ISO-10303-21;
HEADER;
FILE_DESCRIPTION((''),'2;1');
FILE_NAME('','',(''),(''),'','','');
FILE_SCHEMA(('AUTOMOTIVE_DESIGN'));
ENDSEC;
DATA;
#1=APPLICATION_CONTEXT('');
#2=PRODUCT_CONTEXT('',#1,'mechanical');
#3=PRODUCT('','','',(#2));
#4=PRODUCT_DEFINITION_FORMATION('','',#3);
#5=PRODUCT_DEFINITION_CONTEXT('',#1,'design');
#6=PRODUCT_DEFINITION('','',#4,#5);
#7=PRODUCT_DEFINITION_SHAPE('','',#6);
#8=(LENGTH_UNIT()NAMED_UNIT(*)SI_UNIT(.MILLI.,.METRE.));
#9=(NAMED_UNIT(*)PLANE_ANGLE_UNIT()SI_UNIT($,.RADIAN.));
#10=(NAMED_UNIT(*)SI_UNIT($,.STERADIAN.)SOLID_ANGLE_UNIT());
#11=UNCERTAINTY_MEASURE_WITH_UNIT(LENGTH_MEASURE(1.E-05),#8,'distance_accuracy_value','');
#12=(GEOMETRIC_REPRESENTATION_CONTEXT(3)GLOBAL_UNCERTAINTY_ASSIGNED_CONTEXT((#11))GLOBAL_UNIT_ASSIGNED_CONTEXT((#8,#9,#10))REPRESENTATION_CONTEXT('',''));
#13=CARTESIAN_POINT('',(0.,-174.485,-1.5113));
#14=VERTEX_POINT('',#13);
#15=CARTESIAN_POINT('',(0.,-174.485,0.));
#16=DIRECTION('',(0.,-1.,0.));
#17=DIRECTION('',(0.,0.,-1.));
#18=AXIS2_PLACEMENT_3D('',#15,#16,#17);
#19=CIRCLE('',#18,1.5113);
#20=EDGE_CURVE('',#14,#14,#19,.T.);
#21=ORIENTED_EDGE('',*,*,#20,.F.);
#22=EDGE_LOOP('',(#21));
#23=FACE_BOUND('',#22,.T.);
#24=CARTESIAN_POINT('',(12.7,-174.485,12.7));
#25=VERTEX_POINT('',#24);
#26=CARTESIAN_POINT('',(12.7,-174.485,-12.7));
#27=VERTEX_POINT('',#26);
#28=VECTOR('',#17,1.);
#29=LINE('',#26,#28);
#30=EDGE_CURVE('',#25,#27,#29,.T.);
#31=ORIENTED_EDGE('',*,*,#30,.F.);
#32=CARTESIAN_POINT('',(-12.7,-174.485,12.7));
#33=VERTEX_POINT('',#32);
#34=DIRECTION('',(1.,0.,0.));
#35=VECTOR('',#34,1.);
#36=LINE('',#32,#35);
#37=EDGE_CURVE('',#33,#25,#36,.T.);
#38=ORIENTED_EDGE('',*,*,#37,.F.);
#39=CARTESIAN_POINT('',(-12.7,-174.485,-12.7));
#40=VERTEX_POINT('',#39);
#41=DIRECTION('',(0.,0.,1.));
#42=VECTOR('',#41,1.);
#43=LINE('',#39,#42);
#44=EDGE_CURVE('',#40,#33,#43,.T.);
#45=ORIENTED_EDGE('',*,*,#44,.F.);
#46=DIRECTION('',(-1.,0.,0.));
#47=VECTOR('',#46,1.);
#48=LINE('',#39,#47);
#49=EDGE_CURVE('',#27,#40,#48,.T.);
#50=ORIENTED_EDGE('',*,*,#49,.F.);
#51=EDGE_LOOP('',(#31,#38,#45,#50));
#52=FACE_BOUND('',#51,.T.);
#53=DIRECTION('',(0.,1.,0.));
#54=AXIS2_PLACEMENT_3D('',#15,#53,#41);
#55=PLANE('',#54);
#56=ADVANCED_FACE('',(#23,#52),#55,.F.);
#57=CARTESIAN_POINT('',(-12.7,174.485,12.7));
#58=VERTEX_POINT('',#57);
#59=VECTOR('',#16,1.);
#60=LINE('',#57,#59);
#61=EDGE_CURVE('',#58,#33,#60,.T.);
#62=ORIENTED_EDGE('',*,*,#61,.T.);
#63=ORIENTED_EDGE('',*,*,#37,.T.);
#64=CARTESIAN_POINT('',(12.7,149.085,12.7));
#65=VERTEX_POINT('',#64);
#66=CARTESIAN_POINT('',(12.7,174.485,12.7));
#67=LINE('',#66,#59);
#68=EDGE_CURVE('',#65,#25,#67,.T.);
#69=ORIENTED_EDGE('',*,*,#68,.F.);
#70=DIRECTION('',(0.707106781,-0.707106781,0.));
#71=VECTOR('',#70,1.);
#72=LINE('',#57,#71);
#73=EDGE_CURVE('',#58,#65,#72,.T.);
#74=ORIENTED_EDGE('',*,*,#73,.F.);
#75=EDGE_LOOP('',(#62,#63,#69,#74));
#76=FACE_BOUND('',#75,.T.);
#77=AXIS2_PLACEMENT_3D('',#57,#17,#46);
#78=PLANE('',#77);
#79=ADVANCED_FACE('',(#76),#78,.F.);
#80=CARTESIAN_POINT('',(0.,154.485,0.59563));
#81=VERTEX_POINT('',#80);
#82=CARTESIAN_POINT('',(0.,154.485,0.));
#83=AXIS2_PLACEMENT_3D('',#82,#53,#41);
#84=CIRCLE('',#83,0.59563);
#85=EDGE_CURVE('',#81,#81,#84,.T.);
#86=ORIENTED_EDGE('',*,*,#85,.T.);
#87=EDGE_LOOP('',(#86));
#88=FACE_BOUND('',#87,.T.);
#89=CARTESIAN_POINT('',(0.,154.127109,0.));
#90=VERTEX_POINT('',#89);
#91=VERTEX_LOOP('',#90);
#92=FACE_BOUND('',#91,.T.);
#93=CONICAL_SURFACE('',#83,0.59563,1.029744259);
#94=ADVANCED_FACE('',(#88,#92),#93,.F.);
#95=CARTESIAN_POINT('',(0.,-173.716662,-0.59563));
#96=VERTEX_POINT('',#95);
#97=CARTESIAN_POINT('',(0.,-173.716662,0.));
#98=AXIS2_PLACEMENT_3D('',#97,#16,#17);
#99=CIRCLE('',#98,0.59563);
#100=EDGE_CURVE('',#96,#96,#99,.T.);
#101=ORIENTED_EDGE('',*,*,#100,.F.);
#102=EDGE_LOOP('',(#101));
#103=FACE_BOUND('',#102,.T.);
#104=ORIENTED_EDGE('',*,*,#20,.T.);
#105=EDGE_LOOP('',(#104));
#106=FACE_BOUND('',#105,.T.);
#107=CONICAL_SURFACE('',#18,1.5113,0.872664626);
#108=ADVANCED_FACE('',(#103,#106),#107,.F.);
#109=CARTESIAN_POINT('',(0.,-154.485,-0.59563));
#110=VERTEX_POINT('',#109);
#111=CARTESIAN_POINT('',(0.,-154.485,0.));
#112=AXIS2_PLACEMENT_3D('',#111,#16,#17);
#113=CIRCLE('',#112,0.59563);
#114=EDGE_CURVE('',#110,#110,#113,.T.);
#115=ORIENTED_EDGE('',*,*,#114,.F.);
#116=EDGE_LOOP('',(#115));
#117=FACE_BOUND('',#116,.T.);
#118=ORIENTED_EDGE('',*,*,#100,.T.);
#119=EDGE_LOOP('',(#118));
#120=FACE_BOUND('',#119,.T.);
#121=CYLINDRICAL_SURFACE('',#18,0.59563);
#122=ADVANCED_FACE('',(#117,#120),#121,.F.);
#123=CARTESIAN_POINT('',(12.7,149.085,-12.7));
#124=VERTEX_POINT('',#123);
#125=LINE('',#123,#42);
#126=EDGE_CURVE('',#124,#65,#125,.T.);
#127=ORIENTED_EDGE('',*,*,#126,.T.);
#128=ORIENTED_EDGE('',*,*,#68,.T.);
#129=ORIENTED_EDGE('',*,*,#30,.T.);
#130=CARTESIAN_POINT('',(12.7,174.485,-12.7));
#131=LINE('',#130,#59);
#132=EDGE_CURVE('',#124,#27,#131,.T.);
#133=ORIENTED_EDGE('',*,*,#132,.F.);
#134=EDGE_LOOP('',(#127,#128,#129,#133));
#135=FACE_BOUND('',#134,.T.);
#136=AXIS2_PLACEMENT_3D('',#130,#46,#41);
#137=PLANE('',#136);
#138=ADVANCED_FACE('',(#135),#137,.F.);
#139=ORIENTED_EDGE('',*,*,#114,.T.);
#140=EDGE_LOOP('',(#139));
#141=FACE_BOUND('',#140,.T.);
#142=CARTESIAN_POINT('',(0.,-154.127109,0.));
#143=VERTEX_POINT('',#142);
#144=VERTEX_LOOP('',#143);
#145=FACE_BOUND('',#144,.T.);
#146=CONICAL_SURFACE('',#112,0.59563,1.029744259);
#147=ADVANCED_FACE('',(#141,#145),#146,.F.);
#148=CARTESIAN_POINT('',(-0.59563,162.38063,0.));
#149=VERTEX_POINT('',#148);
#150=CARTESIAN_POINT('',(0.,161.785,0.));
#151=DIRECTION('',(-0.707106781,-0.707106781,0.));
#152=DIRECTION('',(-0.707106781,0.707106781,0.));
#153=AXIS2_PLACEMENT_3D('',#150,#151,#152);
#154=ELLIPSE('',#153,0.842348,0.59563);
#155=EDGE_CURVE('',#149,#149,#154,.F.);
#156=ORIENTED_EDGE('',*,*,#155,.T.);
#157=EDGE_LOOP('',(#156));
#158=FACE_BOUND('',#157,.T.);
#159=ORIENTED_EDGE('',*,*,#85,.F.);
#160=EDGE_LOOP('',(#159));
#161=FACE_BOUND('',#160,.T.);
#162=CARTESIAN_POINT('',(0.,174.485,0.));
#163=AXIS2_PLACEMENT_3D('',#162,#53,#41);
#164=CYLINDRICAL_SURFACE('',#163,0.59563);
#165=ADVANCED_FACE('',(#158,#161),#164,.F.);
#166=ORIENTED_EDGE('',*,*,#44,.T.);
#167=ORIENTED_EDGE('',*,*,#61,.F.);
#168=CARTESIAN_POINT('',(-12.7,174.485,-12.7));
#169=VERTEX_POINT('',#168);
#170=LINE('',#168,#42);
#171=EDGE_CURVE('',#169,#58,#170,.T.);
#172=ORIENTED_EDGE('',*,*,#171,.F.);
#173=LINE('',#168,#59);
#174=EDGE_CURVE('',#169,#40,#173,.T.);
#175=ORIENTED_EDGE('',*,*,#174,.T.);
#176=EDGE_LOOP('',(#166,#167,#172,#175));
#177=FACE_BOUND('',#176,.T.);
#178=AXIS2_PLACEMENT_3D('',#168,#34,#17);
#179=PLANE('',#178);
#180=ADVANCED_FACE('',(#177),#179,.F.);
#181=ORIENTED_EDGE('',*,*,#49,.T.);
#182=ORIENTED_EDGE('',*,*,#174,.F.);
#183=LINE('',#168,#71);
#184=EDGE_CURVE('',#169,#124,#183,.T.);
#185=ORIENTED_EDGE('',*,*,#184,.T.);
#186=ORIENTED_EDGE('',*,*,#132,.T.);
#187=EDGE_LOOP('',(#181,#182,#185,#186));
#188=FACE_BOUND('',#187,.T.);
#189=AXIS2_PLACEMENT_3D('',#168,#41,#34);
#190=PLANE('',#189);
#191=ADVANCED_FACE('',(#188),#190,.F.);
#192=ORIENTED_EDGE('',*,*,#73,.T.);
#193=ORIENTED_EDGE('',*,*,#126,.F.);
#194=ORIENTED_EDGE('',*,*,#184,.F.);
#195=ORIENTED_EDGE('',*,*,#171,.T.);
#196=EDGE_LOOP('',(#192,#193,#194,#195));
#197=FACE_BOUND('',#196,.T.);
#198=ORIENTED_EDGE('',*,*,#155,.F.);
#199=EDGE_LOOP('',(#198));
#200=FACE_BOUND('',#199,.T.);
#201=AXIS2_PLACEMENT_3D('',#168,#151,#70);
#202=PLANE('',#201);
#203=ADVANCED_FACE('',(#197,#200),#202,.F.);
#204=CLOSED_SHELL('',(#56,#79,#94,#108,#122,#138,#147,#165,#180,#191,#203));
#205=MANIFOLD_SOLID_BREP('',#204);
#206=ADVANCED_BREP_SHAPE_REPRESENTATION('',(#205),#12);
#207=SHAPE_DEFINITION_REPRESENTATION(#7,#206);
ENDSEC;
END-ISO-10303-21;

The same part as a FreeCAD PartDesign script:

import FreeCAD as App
import Part
import Sketcher

V = App.Vector
Q = App.Units.Quantity


def add_polygon(sketch, points):
    """Adds a closed chain of lines whose ends are joined by coincident constraints."""
    first, n = sketch.GeometryCount, len(points)
    for a, b in zip(points, points[1:] + points[:1]):
        sketch.addGeometry(Part.LineSegment(App.Vector(*a, 0), App.Vector(*b, 0)), False)
    for i in range(n):
        sketch.addConstraint(Sketcher.Constraint("Coincident", first + i, 2, first + (i + 1) % n, 1))

doc = App.newDocument("Part")
body = doc.addObject("PartDesign::Body", "Body")

# Sketch on XZ plane
sketch1 = body.newObject("Sketcher::SketchObject", "Sketch")
sketch1.AttachmentSupport = (doc.getObject("XZ_Plane"), [""])
sketch1.MapMode = "FlatFace"
add_polygon(sketch1, [(-13, -13), (-13, 13), (13, 13), (13, -13)])  # lines 0-3
sketch1.addConstraint(Sketcher.Constraint("Vertical", 0))
sketch1.addConstraint(Sketcher.Constraint("Horizontal", 1))
sketch1.addConstraint(Sketcher.Constraint("Vertical", 2))
sketch1.addConstraint(Sketcher.Constraint("Horizontal", 3))
sketch1.addConstraint(Sketcher.Constraint("Symmetric", 0, 2, 2, 2, -1, 1))
sketch1.addConstraint(Sketcher.Constraint("Equal", 3, 0))
sketch1.addConstraint(Sketcher.Constraint("DistanceX", 1, 1, 1, 2, 25.4))
pad1 = body.newObject("PartDesign::Pad", "Pad")
pad1.Profile = sketch1
pad1.Length = 348.97
pad1.Midplane = True

# Sketch on YZ plane
sketch2 = body.newObject("Sketcher::SketchObject", "Sketch001")
sketch2.AttachmentSupport = (doc.getObject("YZ_Plane"), [""])
sketch2.MapMode = "FlatFace"
add_polygon(sketch2, [(-154.1, 0), (-174.5, 0), (-174.5, -1.5), (-173.7, -0.6), (-154.5, -0.6)])  # lines 0-4
sketch2.addConstraint(Sketcher.Constraint("Horizontal", 0))
sketch2.addConstraint(Sketcher.Constraint("Vertical", 1))
sketch2.addConstraint(Sketcher.Constraint("Horizontal", 3))
sketch2.addConstraint(Sketcher.Constraint("PointOnObject", 0, 2, -1))
sketch2.addConstraint(Sketcher.Constraint("Angle", 2, Q("50 deg")))
sketch2.addConstraint(Sketcher.Constraint("Angle", 4, Q("59 deg")))
sketch2.addConstraint(Sketcher.Constraint("DistanceX", 0, 2, 3, 2, 20.0))
sketch2.addConstraint(Sketcher.Constraint("DistanceY", 1, 2, 1, 1, 1.5113))
sketch2.addConstraint(Sketcher.Constraint("DistanceX", 0, 2, -1, 1, 174.485))
sketch2.addConstraint(Sketcher.Constraint("DistanceX", 0, 2, 0, 1, 20.357891))
groove = body.newObject("PartDesign::Groove", "Groove")
groove.Profile = sketch2
groove.ReferenceAxis = (sketch2, ["H_Axis"])
groove.Angle = 360
doc.recompute()

mirrored = body.newObject("PartDesign::Mirrored", "Mirrored")
mirrored.Originals = [groove]
mirrored.MirrorPlane = (doc.getObject("XZ_Plane"), [""])
body.Tip = mirrored

# Sketch on XY plane
sketch3 = body.newObject("Sketcher::SketchObject", "Sketch002")
sketch3.AttachmentSupport = (doc.getObject("XY_Plane"), [""])
sketch3.MapMode = "FlatFace"
add_polygon(sketch3, [(13, 174), (-13, 174), (13, 149)])  # lines 0-2
sketch3.addConstraint(Sketcher.Constraint("Horizontal", 0))
sketch3.addConstraint(Sketcher.Constraint("Vertical", 2))
sketch3.addConstraint(Sketcher.Constraint("Equal", 0, 2))
sketch3.addConstraint(Sketcher.Constraint("DistanceX", 0, 2, 0, 1, 25.4))
sketch3.addConstraint(Sketcher.Constraint("DistanceX", 0, 2, -1, 1, 12.7))
sketch3.addConstraint(Sketcher.Constraint("DistanceY", -1, 1, 0, 2, 174.485))
pocket1 = body.newObject("PartDesign::Pocket", "Pocket")
pocket1.Profile = sketch3
pocket1.Type = "ThroughAll"
pocket1.Midplane = True

doc.recompute()
